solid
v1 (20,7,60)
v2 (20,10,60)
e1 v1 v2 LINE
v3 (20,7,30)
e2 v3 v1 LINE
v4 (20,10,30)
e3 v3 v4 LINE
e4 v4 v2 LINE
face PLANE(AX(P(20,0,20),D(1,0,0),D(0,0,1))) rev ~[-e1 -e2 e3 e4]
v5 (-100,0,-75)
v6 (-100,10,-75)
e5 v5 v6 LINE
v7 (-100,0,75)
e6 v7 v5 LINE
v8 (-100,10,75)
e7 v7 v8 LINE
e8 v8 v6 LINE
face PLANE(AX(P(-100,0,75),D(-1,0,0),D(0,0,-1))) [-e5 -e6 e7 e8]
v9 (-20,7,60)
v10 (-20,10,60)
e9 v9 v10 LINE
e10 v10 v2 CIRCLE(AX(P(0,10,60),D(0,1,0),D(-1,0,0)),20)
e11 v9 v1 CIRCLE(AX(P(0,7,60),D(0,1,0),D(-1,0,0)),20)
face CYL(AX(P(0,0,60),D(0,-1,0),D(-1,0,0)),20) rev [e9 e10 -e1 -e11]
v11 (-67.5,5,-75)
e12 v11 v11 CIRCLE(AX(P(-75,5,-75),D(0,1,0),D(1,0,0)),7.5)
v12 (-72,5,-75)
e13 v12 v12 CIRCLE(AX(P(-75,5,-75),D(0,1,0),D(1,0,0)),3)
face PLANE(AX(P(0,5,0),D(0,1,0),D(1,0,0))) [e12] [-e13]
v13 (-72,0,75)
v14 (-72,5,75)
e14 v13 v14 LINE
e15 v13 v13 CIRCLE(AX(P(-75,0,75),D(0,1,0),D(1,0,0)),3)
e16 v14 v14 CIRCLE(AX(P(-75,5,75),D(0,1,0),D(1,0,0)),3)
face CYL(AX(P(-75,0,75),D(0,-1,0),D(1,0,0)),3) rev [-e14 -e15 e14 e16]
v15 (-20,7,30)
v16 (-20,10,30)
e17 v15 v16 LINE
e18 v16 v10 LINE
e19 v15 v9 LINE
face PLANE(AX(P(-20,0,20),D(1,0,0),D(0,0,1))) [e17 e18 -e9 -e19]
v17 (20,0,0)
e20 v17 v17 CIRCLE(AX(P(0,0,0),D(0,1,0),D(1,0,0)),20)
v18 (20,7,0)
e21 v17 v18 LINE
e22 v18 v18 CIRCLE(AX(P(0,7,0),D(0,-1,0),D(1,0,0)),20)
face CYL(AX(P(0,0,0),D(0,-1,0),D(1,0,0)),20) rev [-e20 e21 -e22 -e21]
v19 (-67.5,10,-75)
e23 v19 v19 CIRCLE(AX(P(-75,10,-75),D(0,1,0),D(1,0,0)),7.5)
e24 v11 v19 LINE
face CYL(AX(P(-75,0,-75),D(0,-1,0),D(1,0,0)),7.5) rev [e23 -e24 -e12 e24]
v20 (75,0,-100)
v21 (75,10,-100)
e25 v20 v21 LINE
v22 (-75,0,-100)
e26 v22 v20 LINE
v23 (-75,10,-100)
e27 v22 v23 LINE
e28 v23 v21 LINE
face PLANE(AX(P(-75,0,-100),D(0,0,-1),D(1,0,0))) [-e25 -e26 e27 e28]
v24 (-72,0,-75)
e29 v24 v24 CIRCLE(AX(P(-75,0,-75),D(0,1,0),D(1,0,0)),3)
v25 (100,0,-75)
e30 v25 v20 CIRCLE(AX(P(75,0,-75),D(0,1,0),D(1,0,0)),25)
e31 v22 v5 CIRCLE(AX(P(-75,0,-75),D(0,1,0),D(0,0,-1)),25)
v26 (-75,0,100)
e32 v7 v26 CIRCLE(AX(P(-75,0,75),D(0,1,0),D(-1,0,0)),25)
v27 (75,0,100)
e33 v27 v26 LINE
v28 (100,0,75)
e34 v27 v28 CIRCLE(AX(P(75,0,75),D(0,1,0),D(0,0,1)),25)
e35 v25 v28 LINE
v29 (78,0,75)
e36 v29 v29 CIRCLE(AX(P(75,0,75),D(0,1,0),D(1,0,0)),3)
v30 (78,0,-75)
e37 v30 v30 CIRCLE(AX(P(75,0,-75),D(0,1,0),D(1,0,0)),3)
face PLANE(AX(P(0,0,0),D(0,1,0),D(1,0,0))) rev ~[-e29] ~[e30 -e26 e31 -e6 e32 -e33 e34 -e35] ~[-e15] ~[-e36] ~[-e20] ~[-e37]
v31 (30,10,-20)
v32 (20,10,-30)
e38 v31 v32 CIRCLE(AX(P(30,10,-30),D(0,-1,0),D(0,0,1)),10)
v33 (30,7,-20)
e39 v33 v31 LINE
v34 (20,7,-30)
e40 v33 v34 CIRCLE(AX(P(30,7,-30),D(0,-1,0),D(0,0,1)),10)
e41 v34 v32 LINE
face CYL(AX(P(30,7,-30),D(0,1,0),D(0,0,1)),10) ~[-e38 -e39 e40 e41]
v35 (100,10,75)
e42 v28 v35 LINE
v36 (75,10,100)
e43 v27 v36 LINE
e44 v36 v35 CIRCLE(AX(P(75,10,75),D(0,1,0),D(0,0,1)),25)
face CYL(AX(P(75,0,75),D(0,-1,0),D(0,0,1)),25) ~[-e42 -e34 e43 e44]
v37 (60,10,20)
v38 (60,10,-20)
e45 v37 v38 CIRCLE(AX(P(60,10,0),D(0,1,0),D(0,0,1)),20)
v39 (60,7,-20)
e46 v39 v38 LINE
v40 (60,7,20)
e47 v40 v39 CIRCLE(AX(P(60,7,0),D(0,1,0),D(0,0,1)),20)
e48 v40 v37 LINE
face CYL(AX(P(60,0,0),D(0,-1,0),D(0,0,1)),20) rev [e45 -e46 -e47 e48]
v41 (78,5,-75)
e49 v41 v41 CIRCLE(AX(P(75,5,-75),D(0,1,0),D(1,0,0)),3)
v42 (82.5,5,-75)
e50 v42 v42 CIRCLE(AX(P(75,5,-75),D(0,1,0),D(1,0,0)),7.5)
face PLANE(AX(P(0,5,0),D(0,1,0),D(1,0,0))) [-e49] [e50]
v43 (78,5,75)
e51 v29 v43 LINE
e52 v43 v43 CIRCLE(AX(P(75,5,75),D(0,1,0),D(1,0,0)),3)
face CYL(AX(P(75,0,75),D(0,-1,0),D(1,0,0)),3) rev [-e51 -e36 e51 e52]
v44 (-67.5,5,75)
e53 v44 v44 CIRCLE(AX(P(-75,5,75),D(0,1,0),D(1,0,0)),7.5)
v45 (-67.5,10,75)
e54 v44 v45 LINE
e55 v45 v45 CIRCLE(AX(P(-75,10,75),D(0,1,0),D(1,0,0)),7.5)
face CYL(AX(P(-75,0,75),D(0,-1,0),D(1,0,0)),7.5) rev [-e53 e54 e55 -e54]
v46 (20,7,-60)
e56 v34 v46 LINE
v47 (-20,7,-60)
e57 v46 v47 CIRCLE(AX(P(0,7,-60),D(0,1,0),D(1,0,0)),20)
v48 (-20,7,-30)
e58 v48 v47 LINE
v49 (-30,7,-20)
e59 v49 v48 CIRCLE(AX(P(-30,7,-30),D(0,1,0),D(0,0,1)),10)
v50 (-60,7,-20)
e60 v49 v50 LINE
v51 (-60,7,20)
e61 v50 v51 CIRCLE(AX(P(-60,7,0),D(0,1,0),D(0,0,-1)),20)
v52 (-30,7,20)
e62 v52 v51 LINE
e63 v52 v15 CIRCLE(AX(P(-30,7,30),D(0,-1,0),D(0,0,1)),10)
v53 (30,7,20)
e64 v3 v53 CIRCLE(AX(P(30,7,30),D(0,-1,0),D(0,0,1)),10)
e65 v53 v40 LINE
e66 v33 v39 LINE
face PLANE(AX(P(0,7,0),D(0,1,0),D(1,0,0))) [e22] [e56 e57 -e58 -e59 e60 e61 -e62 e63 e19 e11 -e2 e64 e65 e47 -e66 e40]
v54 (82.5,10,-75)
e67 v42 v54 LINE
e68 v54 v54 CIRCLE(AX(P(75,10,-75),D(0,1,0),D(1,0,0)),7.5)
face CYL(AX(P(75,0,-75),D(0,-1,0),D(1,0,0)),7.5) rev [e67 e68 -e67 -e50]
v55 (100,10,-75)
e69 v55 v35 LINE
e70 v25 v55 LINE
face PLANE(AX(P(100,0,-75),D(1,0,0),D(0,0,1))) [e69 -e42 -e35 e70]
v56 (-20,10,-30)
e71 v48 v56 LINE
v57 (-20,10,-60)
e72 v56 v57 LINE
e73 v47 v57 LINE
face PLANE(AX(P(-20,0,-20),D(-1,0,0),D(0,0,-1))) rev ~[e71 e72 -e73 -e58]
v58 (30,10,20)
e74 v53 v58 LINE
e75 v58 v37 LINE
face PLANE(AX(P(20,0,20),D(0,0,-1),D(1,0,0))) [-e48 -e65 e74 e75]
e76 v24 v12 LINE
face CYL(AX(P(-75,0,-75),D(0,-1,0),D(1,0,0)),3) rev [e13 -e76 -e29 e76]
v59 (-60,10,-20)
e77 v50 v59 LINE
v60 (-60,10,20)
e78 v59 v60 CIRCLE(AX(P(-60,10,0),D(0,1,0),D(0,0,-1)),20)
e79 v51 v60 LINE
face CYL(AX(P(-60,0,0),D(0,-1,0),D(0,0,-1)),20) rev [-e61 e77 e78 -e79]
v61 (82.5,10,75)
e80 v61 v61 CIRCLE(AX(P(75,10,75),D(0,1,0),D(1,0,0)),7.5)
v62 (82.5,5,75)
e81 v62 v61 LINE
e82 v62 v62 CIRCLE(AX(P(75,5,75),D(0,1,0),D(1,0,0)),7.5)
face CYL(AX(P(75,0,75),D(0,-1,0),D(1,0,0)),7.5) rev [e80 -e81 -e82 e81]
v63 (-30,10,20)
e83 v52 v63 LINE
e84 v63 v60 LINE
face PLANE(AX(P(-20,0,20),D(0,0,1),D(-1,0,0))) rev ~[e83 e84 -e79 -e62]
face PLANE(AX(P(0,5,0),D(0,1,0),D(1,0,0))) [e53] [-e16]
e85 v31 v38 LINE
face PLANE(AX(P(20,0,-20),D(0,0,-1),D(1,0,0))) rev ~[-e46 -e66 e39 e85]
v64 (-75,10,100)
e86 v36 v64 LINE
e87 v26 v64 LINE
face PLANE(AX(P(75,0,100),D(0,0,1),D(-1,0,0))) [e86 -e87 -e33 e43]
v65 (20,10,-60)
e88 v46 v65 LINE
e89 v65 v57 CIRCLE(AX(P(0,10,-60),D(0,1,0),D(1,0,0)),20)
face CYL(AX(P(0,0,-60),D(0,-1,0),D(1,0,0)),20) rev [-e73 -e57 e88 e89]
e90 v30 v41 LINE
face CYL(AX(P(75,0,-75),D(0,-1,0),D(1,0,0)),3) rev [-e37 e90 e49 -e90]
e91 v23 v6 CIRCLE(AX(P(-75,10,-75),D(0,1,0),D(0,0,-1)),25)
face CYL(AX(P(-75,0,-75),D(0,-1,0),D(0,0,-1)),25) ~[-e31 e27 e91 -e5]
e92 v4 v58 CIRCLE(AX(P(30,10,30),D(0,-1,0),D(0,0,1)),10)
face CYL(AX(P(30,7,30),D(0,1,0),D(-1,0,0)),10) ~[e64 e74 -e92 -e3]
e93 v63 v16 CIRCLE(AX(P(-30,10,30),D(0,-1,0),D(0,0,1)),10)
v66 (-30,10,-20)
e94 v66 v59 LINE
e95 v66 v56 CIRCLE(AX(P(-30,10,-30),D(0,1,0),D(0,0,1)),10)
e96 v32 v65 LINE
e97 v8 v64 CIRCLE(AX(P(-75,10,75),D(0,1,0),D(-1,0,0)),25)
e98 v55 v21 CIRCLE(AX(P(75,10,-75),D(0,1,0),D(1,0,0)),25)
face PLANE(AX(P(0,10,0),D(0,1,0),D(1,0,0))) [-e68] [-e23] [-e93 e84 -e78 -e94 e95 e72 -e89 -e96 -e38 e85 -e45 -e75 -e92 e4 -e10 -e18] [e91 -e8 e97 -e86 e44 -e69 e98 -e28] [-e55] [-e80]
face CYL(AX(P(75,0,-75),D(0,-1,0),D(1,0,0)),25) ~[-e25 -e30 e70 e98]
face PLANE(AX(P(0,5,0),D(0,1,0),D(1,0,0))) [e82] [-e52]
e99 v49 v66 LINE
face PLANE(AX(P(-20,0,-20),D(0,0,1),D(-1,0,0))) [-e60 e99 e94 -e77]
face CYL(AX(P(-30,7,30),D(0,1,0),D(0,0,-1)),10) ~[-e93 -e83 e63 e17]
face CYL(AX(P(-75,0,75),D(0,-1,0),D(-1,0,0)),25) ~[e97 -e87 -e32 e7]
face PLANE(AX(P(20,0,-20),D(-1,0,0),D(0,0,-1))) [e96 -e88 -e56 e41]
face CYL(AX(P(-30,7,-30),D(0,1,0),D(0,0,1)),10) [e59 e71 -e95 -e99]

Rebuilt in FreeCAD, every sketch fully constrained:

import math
import FreeCAD as App
import Part
import Sketcher
from FreeCAD import Vector


def edges_at(feature, points):
    """Names of the edges that pass closest to the given points."""
    edges = feature.Shape.Edges
    near = lambda p: min(range(len(edges)), key=lambda i: edges[i].distToShape(Part.Vertex(*p))[0])
    return sorted({f"Edge{near(p) + 1}" for p in points})

doc = App.newDocument("Part")
body = doc.addObject("PartDesign::Body", "Body")

sketch1 = doc.addObject("Sketcher::SketchObject", "Sketch")
body.addObject(sketch1)
sketch1.AttachmentSupport = (doc.XZ_Plane, [""])
sketch1.MapMode = "FlatFace"
sketch1.addGeometry([
    Part.LineSegment(Vector(75, -100, 0), Vector(-75, -100, 0)),
    Part.ArcOfCircle(Part.Circle(Vector(-75, -75, 0), Vector(0, 0, 1), 25), math.radians(180), math.radians(270)),
    Part.LineSegment(Vector(-100, -75, 0), Vector(-100, 75, 0)),
    Part.ArcOfCircle(Part.Circle(Vector(-75, 75, 0), Vector(0, 0, 1), 25), math.radians(90), math.radians(180)),
    Part.LineSegment(Vector(-75, 100, 0), Vector(75, 100, 0)),
    Part.ArcOfCircle(Part.Circle(Vector(75, 75, 0), Vector(0, 0, 1), 25), math.radians(0), math.radians(90)),
    Part.LineSegment(Vector(100, 75, 0), Vector(100, -75, 0)),
    Part.ArcOfCircle(Part.Circle(Vector(75, -75, 0), Vector(0, 0, 1), 25), math.radians(-90), math.radians(0)),
    Part.Circle(Vector(-75, 75, 0), Vector(0, 0, 1), 8),
    Part.Circle(Vector(75, 75, 0), Vector(0, 0, 1), 8),
    Part.Circle(Vector(-75, -75, 0), Vector(0, 0, 1), 8),
    Part.LineSegment(Vector(-60, -20, 0), Vector(-20, -20, 0)),
    Part.LineSegment(Vector(-20, -20, 0), Vector(-20, -60, 0)),
    Part.ArcOfCircle(Part.Circle(Vector(0, -60, 0), Vector(0, 0, 1), 20), math.radians(180), math.radians(360)),
    Part.LineSegment(Vector(20, -60, 0), Vector(20, -20, 0)),
    Part.LineSegment(Vector(20, -20, 0), Vector(60, -20, 0)),
    Part.ArcOfCircle(Part.Circle(Vector(60, 0, 0), Vector(0, 0, 1), 20), math.radians(-90), math.radians(90)),
    Part.LineSegment(Vector(60, 20, 0), Vector(20, 20, 0)),
    Part.LineSegment(Vector(20, 20, 0), Vector(20, 60, 0)),
    Part.ArcOfCircle(Part.Circle(Vector(0, 60, 0), Vector(0, 0, 1), 20), math.radians(0), math.radians(180)),
    Part.LineSegment(Vector(-20, 60, 0), Vector(-20, 20, 0)),
    Part.LineSegment(Vector(-20, 20, 0), Vector(-60, 20, 0)),
    Part.ArcOfCircle(Part.Circle(Vector(-60, 0, 0), Vector(0, 0, 1), 20), math.radians(90), math.radians(270)),
    Part.Circle(Vector(75, -75, 0), Vector(0, 0, 1), 8),
], False)
sketch1.addConstraint([
    Sketcher.Constraint("Tangent", 0, 2, 1, 2),
    Sketcher.Constraint("Tangent", 1, 1, 2, 1),
    Sketcher.Constraint("Tangent", 2, 2, 3, 2),
    Sketcher.Constraint("Tangent", 3, 1, 4, 1),
    Sketcher.Constraint("Tangent", 4, 2, 5, 2),
    Sketcher.Constraint("Tangent", 5, 1, 6, 1),
    Sketcher.Constraint("Tangent", 6, 2, 7, 2),
    Sketcher.Constraint("Tangent", 7, 1, 0, 1),
    Sketcher.Constraint("Coincident", 11, 2, 12, 1),
    Sketcher.Constraint("Tangent", 12, 2, 13, 1),
    Sketcher.Constraint("Tangent", 13, 2, 14, 1),
    Sketcher.Constraint("Coincident", 14, 2, 15, 1),
    Sketcher.Constraint("Tangent", 15, 2, 16, 1),
    Sketcher.Constraint("Tangent", 16, 2, 17, 1),
    Sketcher.Constraint("Coincident", 17, 2, 18, 1),
    Sketcher.Constraint("Tangent", 18, 2, 19, 1),
    Sketcher.Constraint("Tangent", 19, 2, 20, 1),
    Sketcher.Constraint("Coincident", 20, 2, 21, 1),
    Sketcher.Constraint("Tangent", 21, 2, 22, 1),
    Sketcher.Constraint("Tangent", 22, 2, 11, 1),
    Sketcher.Constraint("Horizontal", 0),
    Sketcher.Constraint("Vertical", 2),
    Sketcher.Constraint("Horizontal", 4),
    Sketcher.Constraint("Vertical", 6),
    Sketcher.Constraint("Horizontal", 11),
    Sketcher.Constraint("Vertical", 12),
    Sketcher.Constraint("Vertical", 14),
    Sketcher.Constraint("Horizontal", 15),
    Sketcher.Constraint("Horizontal", 17),
    Sketcher.Constraint("Vertical", 18),
    Sketcher.Constraint("Vertical", 20),
    Sketcher.Constraint("Horizontal", 21),
    Sketcher.Constraint("Coincident", 8, 3, 3, 3),
    Sketcher.Constraint("Coincident", 9, 3, 5, 3),
    Sketcher.Constraint("Coincident", 10, 3, 1, 3),
    Sketcher.Constraint("Coincident", 23, 3, 7, 3),
    Sketcher.Constraint("Equal", 1, 3),
    Sketcher.Constraint("Equal", 3, 5),
    Sketcher.Constraint("Equal", 5, 7),
    Sketcher.Constraint("Equal", 8, 9),
    Sketcher.Constraint("Equal", 9, 10),
    Sketcher.Constraint("Equal", 13, 16),
    Sketcher.Constraint("Equal", 16, 19),
    Sketcher.Constraint("Equal", 19, 22),
    Sketcher.Constraint("Equal", 10, 23),
    Sketcher.Constraint("Symmetric", 1, 3, 5, 3, -1, 1),
    Sketcher.Constraint("Symmetric", 13, 3, 19, 3, -1, 1),
    Sketcher.Constraint("Symmetric", 16, 3, 22, 3, -1, 1),
    Sketcher.Constraint("Symmetric", 11, 2, 14, 2, -2),
    Sketcher.Constraint("Equal", 4, 2),
    Sketcher.Constraint("Equal", 21, 12),
    Sketcher.Constraint("Diameter", 8, 15.0),
    Sketcher.Constraint("Radius", 1, 25.0),
    Sketcher.Constraint("Radius", 13, 20.0),
    Sketcher.Constraint("DistanceX", 11, 1, 11, 2, 40.0),
    Sketcher.Constraint("DistanceY", 1, 3, 13, 3, 15.0),
])
pad1 = doc.addObject("PartDesign::Pad", "Pad")
body.addObject(pad1)
pad1.Profile = sketch1
pad1.Length = 10
pad1.Reversed = True

sketch2 = doc.addObject("Sketcher::SketchObject", "Sketch001")
body.addObject(sketch2)
sketch2.AttachmentSupport = (doc.XZ_Plane, [""])
sketch2.MapMode = "FlatFace"
sketch2.addGeometry([
    Part.LineSegment(Vector(-20, -60, 0), Vector(-20, -20, 0)),
    Part.LineSegment(Vector(-20, -20, 0), Vector(-60, -20, 0)),
    Part.ArcOfCircle(Part.Circle(Vector(-60, 0, 0), Vector(0, 0, 1), 20), math.radians(90), math.radians(270)),
    Part.LineSegment(Vector(-60, 20, 0), Vector(-20, 20, 0)),
    Part.LineSegment(Vector(-20, 20, 0), Vector(-20, 60, 0)),
    Part.ArcOfCircle(Part.Circle(Vector(0, 60, 0), Vector(0, 0, 1), 20), math.radians(0), math.radians(180)),
    Part.LineSegment(Vector(20, 60, 0), Vector(20, 20, 0)),
    Part.LineSegment(Vector(20, 20, 0), Vector(60, 20, 0)),
    Part.ArcOfCircle(Part.Circle(Vector(60, 0, 0), Vector(0, 0, 1), 20), math.radians(-90), math.radians(90)),
    Part.LineSegment(Vector(60, -20, 0), Vector(20, -20, 0)),
    Part.LineSegment(Vector(20, -20, 0), Vector(20, -60, 0)),
    Part.ArcOfCircle(Part.Circle(Vector(0, -60, 0), Vector(0, 0, 1), 20), math.radians(180), math.radians(360)),
], False)
sketch2.addConstraint([
    Sketcher.Constraint("Coincident", 0, 2, 1, 1),
    Sketcher.Constraint("Tangent", 1, 2, 2, 2),
    Sketcher.Constraint("Tangent", 2, 1, 3, 1),
    Sketcher.Constraint("Coincident", 3, 2, 4, 1),
    Sketcher.Constraint("Tangent", 4, 2, 5, 2),
    Sketcher.Constraint("Tangent", 5, 1, 6, 1),
    Sketcher.Constraint("Coincident", 6, 2, 7, 1),
    Sketcher.Constraint("Tangent", 7, 2, 8, 2),
    Sketcher.Constraint("Tangent", 8, 1, 9, 1),
    Sketcher.Constraint("Coincident", 9, 2, 10, 1),
    Sketcher.Constraint("Tangent", 10, 2, 11, 2),
    Sketcher.Constraint("Tangent", 11, 1, 0, 1),
    Sketcher.Constraint("Vertical", 0),
    Sketcher.Constraint("Horizontal", 1),
    Sketcher.Constraint("Horizontal", 3),
    Sketcher.Constraint("Vertical", 4),
    Sketcher.Constraint("Vertical", 6),
    Sketcher.Constraint("Horizontal", 7),
    Sketcher.Constraint("Horizontal", 9),
    Sketcher.Constraint("Vertical", 10),
    Sketcher.Constraint("Equal", 2, 5),
    Sketcher.Constraint("Equal", 5, 8),
    Sketcher.Constraint("Equal", 8, 11),
    Sketcher.Constraint("Symmetric", 2, 3, 8, 3, -1, 1),
    Sketcher.Constraint("Symmetric", 5, 3, 11, 3, -1, 1),
    Sketcher.Constraint("Symmetric", 3, 2, 6, 2, -2),
    Sketcher.Constraint("Equal", 9, 0),
    Sketcher.Constraint("Radius", 2, 20.0),
    Sketcher.Constraint("DistanceX", 1, 2, 1, 1, 40.0),
])
pad2 = doc.addObject("PartDesign::Pad", "Pad001")
body.addObject(pad2)
pad2.Profile = sketch2
pad2.Length = 7
pad2.Reversed = True

sketch3 = doc.addObject("Sketcher::SketchObject", "Sketch002")
body.addObject(sketch3)
sketch3.AttachmentSupport = (doc.XZ_Plane, [""])
sketch3.MapMode = "FlatFace"
sketch3.addGeometry([
    Part.Circle(Vector(-75, -75, 0), Vector(0, 0, 1), 7.5),
    Part.Circle(Vector(-75, -75, 0), Vector(0, 0, 1), 3),
    Part.Circle(Vector(75, -75, 0), Vector(0, 0, 1), 7.5),
    Part.Circle(Vector(75, -75, 0), Vector(0, 0, 1), 3),
    Part.Circle(Vector(-75, 75, 0), Vector(0, 0, 1), 7.5),
    Part.Circle(Vector(-75, 75, 0), Vector(0, 0, 1), 3),
    Part.Circle(Vector(75, 75, 0), Vector(0, 0, 1), 7.5),
    Part.Circle(Vector(75, 75, 0), Vector(0, 0, 1), 3),
], False)
sketch3.addConstraint([
    Sketcher.Constraint("Coincident", 1, 3, 0, 3),
    Sketcher.Constraint("Coincident", 3, 3, 2, 3),
    Sketcher.Constraint("Coincident", 5, 3, 4, 3),
    Sketcher.Constraint("Coincident", 7, 3, 6, 3),
    Sketcher.Constraint("Equal", 0, 2),
    Sketcher.Constraint("Equal", 1, 3),
    Sketcher.Constraint("Equal", 2, 4),
    Sketcher.Constraint("Equal", 3, 5),
    Sketcher.Constraint("Equal", 4, 6),
    Sketcher.Constraint("Equal", 5, 7),
    Sketcher.Constraint("Symmetric", 2, 3, 4, 3, -1, 1),
    Sketcher.Constraint("Symmetric", 0, 3, 6, 3, -1, 1),
    Sketcher.Constraint("Symmetric", 0, 3, 2, 3, -2),
    Sketcher.Constraint("Diameter", 0, 15.0),
    Sketcher.Constraint("Diameter", 1, 6.0),
    Sketcher.Constraint("DistanceX", 0, 3, -1, 1, 75.0),
    Sketcher.Constraint("DistanceY", 0, 3, -1, 1, 75.0),
])
pad3 = doc.addObject("PartDesign::Pad", "Pad002")
body.addObject(pad3)
pad3.Profile = sketch3
pad3.Length = 5
pad3.Reversed = True

sketch4 = doc.addObject("Sketcher::SketchObject", "Sketch003")
body.addObject(sketch4)
sketch4.AttachmentSupport = (doc.XZ_Plane, [""])
sketch4.MapMode = "FlatFace"
sketch4.addGeometry(Part.Circle(Vector(0, 0, 0), Vector(0, 0, 1), 20), False)
sketch4.addConstraint([
    Sketcher.Constraint("Coincident", 0, 3, -1, 1),
    Sketcher.Constraint("Diameter", 0, 40.0),
])
pocket1 = doc.addObject("PartDesign::Pocket", "Pocket")
body.addObject(pocket1)
pocket1.Profile = sketch4
pocket1.Length = 40
doc.recompute()

fillet = doc.addObject("PartDesign::Fillet", "Fillet")
body.addObject(fillet)
fillet.Base = (pocket1, edges_at(pocket1, [
    (-20, 8.5, -20),
    (20, 8.5, -20),
    (-20, 8.5, 20),
    (20, 8.5, 20),
]))
fillet.Radius = 10

doc.recompute()
